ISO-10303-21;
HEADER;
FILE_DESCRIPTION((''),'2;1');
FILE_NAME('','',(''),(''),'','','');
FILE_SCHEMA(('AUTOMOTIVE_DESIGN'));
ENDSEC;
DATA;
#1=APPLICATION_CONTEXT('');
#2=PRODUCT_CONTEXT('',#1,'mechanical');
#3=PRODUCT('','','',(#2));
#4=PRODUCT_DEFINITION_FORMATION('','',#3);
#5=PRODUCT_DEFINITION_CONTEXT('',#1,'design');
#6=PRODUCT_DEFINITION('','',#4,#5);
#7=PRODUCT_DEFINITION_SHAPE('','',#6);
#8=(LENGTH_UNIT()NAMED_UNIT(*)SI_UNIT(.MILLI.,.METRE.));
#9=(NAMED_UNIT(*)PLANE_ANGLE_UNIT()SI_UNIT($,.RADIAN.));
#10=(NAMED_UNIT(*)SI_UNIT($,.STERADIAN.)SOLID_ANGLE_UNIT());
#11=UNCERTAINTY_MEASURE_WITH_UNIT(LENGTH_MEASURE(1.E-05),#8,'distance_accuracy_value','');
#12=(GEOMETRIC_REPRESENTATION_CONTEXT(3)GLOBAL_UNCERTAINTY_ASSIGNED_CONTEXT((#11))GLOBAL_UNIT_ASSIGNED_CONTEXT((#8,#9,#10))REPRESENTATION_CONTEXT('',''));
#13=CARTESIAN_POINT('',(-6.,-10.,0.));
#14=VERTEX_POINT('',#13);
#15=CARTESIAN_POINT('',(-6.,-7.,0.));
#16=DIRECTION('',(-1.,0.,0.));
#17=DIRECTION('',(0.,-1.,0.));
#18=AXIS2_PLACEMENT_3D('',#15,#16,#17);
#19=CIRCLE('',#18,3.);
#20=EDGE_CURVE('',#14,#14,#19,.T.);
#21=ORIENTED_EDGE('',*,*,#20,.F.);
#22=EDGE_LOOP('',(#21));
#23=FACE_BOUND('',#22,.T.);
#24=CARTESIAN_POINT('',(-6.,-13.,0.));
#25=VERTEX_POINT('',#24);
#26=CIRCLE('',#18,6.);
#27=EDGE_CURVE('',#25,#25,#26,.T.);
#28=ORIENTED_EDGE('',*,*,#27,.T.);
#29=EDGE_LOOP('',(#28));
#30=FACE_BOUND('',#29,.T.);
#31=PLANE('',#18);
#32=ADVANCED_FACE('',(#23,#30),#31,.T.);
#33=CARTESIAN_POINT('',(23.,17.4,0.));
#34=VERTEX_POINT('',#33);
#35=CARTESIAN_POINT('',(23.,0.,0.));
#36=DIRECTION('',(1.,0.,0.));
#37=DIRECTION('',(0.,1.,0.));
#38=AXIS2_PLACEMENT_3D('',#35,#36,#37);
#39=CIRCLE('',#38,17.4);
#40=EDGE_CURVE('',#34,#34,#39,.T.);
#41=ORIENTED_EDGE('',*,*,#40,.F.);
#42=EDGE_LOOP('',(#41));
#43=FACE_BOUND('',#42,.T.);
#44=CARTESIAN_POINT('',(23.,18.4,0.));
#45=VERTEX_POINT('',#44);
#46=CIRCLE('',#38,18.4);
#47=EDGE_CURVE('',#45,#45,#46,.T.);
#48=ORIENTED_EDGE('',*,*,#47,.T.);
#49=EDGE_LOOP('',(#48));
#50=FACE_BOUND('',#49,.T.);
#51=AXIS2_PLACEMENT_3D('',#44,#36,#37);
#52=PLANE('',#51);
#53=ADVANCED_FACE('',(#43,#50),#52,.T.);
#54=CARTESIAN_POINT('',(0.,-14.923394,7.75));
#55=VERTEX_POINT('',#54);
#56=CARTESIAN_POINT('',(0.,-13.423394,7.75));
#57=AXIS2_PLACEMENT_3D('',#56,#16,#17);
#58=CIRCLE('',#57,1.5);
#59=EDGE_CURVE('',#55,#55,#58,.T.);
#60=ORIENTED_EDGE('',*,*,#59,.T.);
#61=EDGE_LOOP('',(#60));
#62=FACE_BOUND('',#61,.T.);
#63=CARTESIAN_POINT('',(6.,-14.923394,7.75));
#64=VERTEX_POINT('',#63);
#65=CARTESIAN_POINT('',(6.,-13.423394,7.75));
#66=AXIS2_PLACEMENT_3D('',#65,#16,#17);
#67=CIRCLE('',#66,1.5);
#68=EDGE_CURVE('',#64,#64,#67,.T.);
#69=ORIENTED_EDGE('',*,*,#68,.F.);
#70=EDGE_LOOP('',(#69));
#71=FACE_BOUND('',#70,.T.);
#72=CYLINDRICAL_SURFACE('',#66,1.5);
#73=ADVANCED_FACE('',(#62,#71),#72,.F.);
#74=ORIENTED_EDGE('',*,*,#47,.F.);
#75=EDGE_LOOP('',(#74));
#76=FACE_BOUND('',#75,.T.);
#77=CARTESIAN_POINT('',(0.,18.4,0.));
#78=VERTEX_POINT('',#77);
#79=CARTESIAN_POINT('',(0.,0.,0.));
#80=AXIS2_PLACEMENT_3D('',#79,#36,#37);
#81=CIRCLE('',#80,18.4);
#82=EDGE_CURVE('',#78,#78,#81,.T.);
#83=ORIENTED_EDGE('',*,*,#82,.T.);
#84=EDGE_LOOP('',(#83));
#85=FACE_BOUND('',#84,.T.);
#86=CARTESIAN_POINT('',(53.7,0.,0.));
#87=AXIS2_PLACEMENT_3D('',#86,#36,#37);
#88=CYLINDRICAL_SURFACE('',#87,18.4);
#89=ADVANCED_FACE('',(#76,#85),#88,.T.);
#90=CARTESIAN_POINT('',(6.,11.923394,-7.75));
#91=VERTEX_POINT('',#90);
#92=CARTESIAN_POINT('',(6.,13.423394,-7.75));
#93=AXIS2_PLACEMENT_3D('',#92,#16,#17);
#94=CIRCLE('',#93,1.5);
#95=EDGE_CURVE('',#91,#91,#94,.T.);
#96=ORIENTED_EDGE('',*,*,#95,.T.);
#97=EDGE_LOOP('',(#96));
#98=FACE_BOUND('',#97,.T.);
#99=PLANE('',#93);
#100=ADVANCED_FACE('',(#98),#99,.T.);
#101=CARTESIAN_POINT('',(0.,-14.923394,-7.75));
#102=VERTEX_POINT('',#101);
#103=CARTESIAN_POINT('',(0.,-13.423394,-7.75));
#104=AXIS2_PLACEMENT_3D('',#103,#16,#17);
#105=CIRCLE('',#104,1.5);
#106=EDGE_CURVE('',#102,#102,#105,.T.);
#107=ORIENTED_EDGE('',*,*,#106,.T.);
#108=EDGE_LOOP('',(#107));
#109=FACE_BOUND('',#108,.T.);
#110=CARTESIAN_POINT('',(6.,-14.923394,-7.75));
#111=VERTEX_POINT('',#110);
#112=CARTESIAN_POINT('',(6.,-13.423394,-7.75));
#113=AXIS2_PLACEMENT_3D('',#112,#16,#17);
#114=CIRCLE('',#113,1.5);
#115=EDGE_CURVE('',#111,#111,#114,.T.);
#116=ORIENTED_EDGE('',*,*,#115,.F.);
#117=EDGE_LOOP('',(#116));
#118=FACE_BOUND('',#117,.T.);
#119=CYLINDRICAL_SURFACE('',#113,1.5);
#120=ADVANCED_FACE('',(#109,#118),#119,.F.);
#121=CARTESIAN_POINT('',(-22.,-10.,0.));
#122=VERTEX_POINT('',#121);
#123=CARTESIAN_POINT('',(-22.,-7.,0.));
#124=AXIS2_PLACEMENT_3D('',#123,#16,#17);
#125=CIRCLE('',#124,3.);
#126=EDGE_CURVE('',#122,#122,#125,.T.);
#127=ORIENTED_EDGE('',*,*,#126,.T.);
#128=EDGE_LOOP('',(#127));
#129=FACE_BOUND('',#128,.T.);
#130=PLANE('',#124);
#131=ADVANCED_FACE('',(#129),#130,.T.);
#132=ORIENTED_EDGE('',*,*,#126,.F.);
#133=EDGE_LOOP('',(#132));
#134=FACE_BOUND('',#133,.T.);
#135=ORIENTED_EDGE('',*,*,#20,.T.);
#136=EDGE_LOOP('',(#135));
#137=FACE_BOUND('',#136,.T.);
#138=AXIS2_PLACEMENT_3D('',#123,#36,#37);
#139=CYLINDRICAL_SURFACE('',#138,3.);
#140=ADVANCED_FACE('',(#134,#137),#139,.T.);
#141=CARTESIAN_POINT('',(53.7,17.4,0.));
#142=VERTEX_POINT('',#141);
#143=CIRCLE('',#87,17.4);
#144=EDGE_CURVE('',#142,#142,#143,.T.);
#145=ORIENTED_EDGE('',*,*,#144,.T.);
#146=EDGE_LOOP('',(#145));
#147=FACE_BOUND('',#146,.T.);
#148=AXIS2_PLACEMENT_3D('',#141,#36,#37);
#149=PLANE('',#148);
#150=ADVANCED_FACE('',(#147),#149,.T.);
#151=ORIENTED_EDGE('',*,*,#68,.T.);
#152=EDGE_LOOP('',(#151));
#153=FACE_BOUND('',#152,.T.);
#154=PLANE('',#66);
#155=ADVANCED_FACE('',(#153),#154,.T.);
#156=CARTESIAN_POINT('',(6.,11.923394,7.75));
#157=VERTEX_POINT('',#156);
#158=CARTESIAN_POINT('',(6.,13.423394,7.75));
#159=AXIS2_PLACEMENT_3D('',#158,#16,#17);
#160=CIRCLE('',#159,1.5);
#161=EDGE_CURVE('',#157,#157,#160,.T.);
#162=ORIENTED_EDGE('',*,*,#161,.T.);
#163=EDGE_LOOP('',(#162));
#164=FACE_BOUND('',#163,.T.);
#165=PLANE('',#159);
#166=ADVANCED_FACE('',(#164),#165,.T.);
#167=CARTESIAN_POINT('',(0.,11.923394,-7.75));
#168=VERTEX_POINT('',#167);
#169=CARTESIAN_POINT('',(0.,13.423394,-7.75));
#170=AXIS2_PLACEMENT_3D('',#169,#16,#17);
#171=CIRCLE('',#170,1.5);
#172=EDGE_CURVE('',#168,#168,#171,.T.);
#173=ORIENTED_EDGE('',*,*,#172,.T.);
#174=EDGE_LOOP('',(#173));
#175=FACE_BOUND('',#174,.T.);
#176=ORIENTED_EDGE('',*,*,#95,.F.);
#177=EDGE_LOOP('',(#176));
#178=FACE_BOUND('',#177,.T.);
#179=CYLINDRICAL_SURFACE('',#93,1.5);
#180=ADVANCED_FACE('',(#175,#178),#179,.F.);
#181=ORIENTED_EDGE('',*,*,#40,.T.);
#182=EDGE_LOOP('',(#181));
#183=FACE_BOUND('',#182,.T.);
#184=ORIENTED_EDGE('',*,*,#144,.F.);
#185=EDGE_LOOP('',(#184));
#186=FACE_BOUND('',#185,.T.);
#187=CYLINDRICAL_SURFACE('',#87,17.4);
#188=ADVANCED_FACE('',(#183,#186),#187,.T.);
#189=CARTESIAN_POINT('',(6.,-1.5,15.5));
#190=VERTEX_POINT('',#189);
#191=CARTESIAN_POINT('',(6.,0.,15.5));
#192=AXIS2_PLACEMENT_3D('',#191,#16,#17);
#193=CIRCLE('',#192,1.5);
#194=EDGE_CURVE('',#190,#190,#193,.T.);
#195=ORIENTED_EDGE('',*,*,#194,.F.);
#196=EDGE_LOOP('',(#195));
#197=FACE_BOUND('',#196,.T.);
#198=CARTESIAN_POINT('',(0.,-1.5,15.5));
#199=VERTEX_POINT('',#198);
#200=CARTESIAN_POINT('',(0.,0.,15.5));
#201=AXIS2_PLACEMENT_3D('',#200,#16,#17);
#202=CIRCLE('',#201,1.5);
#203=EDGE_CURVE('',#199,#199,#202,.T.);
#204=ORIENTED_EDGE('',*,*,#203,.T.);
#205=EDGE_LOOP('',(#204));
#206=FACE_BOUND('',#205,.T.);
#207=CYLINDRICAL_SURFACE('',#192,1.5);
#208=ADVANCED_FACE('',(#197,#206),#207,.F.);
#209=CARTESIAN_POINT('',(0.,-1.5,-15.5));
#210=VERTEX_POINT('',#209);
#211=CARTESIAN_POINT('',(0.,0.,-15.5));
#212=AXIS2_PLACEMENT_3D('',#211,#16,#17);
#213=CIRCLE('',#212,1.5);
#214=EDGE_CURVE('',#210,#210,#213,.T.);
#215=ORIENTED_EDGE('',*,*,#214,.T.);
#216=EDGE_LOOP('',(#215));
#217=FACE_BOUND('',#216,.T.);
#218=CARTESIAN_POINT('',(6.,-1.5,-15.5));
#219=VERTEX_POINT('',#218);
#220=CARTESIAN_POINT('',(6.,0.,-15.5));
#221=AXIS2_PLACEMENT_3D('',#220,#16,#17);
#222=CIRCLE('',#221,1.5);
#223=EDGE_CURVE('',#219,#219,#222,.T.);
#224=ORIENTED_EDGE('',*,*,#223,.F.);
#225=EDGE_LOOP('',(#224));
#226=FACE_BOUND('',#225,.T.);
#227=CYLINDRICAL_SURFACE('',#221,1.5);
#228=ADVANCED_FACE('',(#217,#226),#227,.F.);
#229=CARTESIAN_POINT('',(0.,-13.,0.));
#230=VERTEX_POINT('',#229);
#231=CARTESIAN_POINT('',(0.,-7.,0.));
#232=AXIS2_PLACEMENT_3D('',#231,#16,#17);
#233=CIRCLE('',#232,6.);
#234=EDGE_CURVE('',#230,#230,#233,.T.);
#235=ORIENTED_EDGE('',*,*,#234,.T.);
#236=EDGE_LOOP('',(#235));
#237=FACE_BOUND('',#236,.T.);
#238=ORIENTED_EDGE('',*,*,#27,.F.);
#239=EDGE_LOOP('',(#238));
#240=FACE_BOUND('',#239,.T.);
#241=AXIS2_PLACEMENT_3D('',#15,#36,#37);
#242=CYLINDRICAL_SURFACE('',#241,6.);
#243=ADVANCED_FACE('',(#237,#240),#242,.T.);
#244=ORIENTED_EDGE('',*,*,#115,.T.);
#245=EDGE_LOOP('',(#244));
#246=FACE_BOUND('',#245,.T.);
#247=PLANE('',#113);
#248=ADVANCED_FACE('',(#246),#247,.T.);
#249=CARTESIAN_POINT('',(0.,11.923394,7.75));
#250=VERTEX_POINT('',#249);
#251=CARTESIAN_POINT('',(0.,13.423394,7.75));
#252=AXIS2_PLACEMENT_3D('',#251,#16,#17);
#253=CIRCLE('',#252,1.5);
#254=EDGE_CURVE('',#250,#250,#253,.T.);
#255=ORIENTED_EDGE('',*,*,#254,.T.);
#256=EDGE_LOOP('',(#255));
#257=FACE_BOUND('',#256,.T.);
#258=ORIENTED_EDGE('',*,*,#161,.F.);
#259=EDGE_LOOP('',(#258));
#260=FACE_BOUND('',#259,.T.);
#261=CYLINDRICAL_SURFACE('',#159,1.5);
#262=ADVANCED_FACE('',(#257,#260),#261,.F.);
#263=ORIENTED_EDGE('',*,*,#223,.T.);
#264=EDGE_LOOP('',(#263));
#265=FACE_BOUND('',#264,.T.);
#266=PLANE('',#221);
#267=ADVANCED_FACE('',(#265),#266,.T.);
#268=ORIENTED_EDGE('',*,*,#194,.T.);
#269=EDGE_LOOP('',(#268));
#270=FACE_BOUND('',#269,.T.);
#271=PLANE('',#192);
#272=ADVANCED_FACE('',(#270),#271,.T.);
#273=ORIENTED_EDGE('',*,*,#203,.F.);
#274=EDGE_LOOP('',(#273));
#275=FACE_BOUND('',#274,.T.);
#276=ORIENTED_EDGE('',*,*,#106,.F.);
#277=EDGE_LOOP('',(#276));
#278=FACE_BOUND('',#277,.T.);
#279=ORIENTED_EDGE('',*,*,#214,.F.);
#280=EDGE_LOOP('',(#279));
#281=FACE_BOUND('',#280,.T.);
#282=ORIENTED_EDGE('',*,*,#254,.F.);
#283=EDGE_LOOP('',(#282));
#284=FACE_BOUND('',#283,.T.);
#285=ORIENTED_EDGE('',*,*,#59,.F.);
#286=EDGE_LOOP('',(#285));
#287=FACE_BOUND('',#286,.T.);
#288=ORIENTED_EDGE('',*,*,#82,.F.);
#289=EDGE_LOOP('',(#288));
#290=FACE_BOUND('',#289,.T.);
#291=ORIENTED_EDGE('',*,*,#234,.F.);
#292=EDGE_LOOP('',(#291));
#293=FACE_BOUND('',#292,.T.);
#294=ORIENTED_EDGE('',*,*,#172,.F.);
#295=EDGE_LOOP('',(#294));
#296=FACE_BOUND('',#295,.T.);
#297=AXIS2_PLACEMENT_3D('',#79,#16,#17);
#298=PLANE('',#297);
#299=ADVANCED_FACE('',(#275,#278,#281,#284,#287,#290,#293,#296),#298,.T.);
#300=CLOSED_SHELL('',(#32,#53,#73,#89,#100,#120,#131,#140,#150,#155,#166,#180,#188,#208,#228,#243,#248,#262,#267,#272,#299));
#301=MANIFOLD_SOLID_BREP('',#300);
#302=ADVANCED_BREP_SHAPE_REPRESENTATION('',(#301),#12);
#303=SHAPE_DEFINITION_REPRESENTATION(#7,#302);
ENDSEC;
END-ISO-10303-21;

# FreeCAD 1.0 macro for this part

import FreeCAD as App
import Part
import Sketcher

V = App.Vector

doc = App.newDocument("Part")
body = doc.addObject("PartDesign::Body", "Body")

# Sketch on XY plane
sketch1 = body.newObject("Sketcher::SketchObject", "Sketch")
sketch1.AttachmentSupport = (doc.getObject("XY_Plane"), [""])
sketch1.MapMode = "FlatFace"
sketch1.addGeometry(Part.LineSegment(V(0, 18.4, 0), V(0, 0, 0)), False)
sketch1.addGeometry(Part.LineSegment(V(0, 0, 0), V(53.7, 0, 0)), False)
sketch1.addGeometry(Part.LineSegment(V(53.7, 0, 0), V(53.7, 17.4, 0)), False)
sketch1.addGeometry(Part.LineSegment(V(53.7, 17.4, 0), V(23, 17.4, 0)), False)
sketch1.addGeometry(Part.LineSegment(V(23, 17.4, 0), V(23, 18.4, 0)), False)
sketch1.addGeometry(Part.LineSegment(V(23, 18.4, 0), V(0, 18.4, 0)), False)
sketch1.addConstraint(Sketcher.Constraint("Coincident", 0, 2, 1, 1))
sketch1.addConstraint(Sketcher.Constraint("Coincident", 1, 2, 2, 1))
sketch1.addConstraint(Sketcher.Constraint("Coincident", 2, 2, 3, 1))
sketch1.addConstraint(Sketcher.Constraint("Coincident", 3, 2, 4, 1))
sketch1.addConstraint(Sketcher.Constraint("Coincident", 4, 2, 5, 1))
sketch1.addConstraint(Sketcher.Constraint("Coincident", 5, 2, 0, 1))
sketch1.addConstraint(Sketcher.Constraint("Vertical", 0))
sketch1.addConstraint(Sketcher.Constraint("Horizontal", 1))
sketch1.addConstraint(Sketcher.Constraint("Vertical", 2))
sketch1.addConstraint(Sketcher.Constraint("Horizontal", 3))
sketch1.addConstraint(Sketcher.Constraint("Vertical", 4))
sketch1.addConstraint(Sketcher.Constraint("Horizontal", 5))
sketch1.addConstraint(Sketcher.Constraint("Coincident", 0, 2, -1, 1))
sketch1.addConstraint(Sketcher.Constraint("DistanceX", 5, 2, 5, 1, 23.0))
sketch1.addConstraint(Sketcher.Constraint("DistanceY", 4, 1, 4, 2, 1.0))
sketch1.addConstraint(Sketcher.Constraint("DistanceX", 1, 1, 1, 2, 53.7))
sketch1.addConstraint(Sketcher.Constraint("DistanceY", 0, 2, 0, 1, 18.4))
revolution = body.newObject("PartDesign::Revolution", "Revolution")
revolution.Profile = sketch1
revolution.ReferenceAxis = (sketch1, ["H_Axis"])
revolution.Angle = 360

# Sketch on YZ plane
sketch2 = body.newObject("Sketcher::SketchObject", "Sketch001")
sketch2.AttachmentSupport = (doc.getObject("YZ_Plane"), [""])
sketch2.MapMode = "FlatFace"
sketch2.addGeometry(Part.Circle(V(-7, 0, 0), V(0, 0, 1), 3), False)
sketch2.addConstraint(Sketcher.Constraint("PointOnObject", 0, 3, -1))
sketch2.addConstraint(Sketcher.Constraint("Diameter", 0, 6.0))
sketch2.addConstraint(Sketcher.Constraint("DistanceX", 0, 3, -1, 1, 7.0))
pad1 = body.newObject("PartDesign::Pad", "Pad")
pad1.Profile = sketch2
pad1.Length = 22
pad1.Reversed = True

# Sketch on YZ plane
sketch3 = body.newObject("Sketcher::SketchObject", "Sketch002")
sketch3.AttachmentSupport = (doc.getObject("YZ_Plane"), [""])
sketch3.MapMode = "FlatFace"
sketch3.addGeometry(Part.Circle(V(-7, 0, 0), V(0, 0, 1), 6), False)
sketch3.addConstraint(Sketcher.Constraint("PointOnObject", 0, 3, -1))
sketch3.addConstraint(Sketcher.Constraint("Diameter", 0, 12.0))
sketch3.addConstraint(Sketcher.Constraint("DistanceX", 0, 3, -1, 1, 7.0))
pad2 = body.newObject("PartDesign::Pad", "Pad001")
pad2.Profile = sketch3
pad2.Length = 6
pad2.Reversed = True

# Sketch on YZ plane
sketch4 = body.newObject("Sketcher::SketchObject", "Sketch003")
sketch4.AttachmentSupport = (doc.getObject("YZ_Plane"), [""])
sketch4.MapMode = "FlatFace"
sketch4.addGeometry(Part.Circle(V(0, 15.5, 0), V(0, 0, 1), 1.5), False)
sketch4.addGeometry(Part.Circle(V(-13.4, 7.8, 0), V(0, 0, 1), 1.5), False)
sketch4.addGeometry(Part.Circle(V(-13.4, -7.8, 0), V(0, 0, 1), 1.5), False)
sketch4.addGeometry(Part.Circle(V(0, -15.5, 0), V(0, 0, 1), 1.5), False)
sketch4.addGeometry(Part.Circle(V(13.4, -7.8, 0), V(0, 0, 1), 1.5), False)
sketch4.addGeometry(Part.Circle(V(13.4, 7.8, 0), V(0, 0, 1), 1.5), False)
sketch4.addConstraint(Sketcher.Constraint("Equal", 0, 1))
sketch4.addConstraint(Sketcher.Constraint("Equal", 1, 2))
sketch4.addConstraint(Sketcher.Constraint("Equal", 2, 3))
sketch4.addConstraint(Sketcher.Constraint("Equal", 3, 4))
sketch4.addConstraint(Sketcher.Constraint("Equal", 4, 5))
sketch4.addConstraint(Sketcher.Constraint("Symmetric", 0, 3, 3, 3, -1, 1))
sketch4.addConstraint(Sketcher.Constraint("Symmetric", 1, 3, 4, 3, -1, 1))
sketch4.addConstraint(Sketcher.Constraint("Symmetric", 2, 3, 5, 3, -1, 1))
sketch4.addConstraint(Sketcher.Constraint("Symmetric", 2, 3, 4, 3, -2))
sketch4.addConstraint(Sketcher.Constraint("PointOnObject", 0, 3, -2))
sketch4.addConstraint(Sketcher.Constraint("Diameter", 0, 3.0))
sketch4.addConstraint(Sketcher.Constraint("DistanceY", 3, 3, 0, 3, 31.0))
sketch4.addConstraint(Sketcher.Constraint("DistanceY", 2, 3, 1, 3, 15.5))
sketch4.addConstraint(Sketcher.Constraint("DistanceX", 1, 3, -1, 1, 13.423394))
pocket1 = body.newObject("PartDesign::Pocket", "Pocket")
pocket1.Profile = sketch4
pocket1.Length = 6
pocket1.Reversed = True

doc.recompute()
